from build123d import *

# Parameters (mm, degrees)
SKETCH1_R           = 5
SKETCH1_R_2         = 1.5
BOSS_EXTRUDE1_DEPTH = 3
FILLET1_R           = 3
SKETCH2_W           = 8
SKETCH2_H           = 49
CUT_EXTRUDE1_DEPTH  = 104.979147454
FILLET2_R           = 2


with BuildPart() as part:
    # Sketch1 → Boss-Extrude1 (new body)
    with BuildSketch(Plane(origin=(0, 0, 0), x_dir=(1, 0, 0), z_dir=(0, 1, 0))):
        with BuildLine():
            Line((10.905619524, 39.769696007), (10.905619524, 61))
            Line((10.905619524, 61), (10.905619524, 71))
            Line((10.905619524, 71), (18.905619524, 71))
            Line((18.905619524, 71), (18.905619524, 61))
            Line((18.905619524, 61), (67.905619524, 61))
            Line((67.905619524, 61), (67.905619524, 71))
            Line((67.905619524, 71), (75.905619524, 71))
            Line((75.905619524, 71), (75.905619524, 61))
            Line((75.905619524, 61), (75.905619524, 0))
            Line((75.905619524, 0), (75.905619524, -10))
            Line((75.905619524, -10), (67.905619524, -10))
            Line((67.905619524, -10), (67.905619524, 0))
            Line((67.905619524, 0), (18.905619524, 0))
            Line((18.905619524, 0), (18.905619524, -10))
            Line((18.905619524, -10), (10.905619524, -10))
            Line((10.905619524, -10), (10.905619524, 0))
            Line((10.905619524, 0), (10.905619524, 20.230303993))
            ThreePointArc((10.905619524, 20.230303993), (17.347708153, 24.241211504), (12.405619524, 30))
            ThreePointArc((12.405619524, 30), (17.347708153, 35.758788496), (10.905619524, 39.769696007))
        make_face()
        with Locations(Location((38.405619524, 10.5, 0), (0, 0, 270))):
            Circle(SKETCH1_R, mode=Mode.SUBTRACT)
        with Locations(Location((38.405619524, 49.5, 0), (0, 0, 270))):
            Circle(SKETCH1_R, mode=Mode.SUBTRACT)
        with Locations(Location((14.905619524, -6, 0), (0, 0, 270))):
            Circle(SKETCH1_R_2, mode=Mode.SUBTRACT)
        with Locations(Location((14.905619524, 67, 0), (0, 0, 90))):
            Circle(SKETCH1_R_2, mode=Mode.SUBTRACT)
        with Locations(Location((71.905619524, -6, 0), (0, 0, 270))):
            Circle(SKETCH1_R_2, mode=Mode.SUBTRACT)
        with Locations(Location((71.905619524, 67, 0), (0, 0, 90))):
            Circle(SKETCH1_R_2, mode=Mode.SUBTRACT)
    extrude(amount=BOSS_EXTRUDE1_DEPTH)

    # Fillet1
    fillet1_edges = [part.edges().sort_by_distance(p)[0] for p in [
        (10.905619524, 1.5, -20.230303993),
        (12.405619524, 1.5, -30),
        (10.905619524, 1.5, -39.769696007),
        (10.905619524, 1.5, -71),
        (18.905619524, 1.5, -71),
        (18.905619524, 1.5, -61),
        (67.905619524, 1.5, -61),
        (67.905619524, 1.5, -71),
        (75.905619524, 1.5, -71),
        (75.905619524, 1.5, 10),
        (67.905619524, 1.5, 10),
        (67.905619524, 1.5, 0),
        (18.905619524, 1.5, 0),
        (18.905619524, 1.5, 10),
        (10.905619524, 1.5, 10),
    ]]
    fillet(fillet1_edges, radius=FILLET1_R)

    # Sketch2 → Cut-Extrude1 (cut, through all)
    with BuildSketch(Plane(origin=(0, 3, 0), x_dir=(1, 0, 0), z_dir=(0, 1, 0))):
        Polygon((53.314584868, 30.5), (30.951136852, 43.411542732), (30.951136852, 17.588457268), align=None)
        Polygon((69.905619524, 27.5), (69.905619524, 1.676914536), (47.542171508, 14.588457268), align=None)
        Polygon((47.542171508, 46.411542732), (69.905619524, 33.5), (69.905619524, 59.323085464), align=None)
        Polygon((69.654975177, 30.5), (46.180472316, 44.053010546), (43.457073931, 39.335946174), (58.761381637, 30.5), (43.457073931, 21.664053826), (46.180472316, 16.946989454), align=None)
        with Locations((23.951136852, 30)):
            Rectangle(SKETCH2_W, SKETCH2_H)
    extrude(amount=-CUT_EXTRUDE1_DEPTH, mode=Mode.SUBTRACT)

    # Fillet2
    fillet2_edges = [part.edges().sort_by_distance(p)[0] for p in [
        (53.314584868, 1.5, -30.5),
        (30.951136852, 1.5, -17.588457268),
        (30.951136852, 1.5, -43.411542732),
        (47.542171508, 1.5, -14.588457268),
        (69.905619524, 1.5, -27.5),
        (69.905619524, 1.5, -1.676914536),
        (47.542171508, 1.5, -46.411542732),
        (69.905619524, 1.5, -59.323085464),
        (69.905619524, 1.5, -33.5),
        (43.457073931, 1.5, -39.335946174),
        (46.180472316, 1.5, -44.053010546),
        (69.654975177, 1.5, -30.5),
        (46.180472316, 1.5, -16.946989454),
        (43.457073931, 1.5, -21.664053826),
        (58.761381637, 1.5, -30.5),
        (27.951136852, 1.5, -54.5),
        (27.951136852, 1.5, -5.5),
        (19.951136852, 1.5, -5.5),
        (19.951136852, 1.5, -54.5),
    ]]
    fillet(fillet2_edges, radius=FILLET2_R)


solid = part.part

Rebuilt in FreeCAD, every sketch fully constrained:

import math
import FreeCAD as App
import Part
import Sketcher
from FreeCAD import Vector
Q = App.Units.Quantity


def edges_at(feature, points):
    """Names of the edges that pass closest to the given points."""
    edges = feature.Shape.Edges
    near = lambda p: min(range(len(edges)), key=lambda i: edges[i].distToShape(Part.Vertex(*p))[0])
    return sorted({f"Edge{near(p) + 1}" for p in points})


def add_polygon(sketch, points):
    """Adds a closed chain of lines whose ends are joined by coincident constraints."""
    first, n = sketch.GeometryCount, len(points)
    for a, b in zip(points, points[1:] + points[:1]):
        sketch.addGeometry(Part.LineSegment(App.Vector(*a, 0), App.Vector(*b, 0)), False)
    for i in range(n):
        sketch.addConstraint(Sketcher.Constraint("Coincident", first + i, 2, first + (i + 1) % n, 1))

doc = App.newDocument("Part")
body = doc.addObject("PartDesign::Body", "Body")

# Sketch on XZ plane
sketch1 = body.newObject("Sketcher::SketchObject", "Sketch")
sketch1.AttachmentSupport = (doc.getObject("XZ_Plane"), [""])
sketch1.MapMode = "FlatFace"
sketch1.addGeometry([
    Part.LineSegment(Vector(10.90562, -71, 0), Vector(10.90562, -39.769696, 0)),  # 0
    Part.ArcOfCircle(Part.Circle(Vector(12.40562, -35, 0), Vector(0, 0, 1), 5), math.radians(-107.457603), math.radians(90)),  # 1
    Part.ArcOfCircle(Part.Circle(Vector(12.40562, -25, 0), Vector(0, 0, 1), 5), math.radians(-90), math.radians(107.457603)),  # 2
    Part.LineSegment(Vector(10.90562, -20.230304, 0), Vector(10.90562, 10, 0)),  # 3
    Part.LineSegment(Vector(10.90562, 10, 0), Vector(18.90562, 10, 0)),  # 4
    Part.LineSegment(Vector(18.90562, 10, 0), Vector(18.90562, 0, 0)),  # 5
    Part.LineSegment(Vector(18.90562, 0, 0), Vector(67.90562, 0, 0)),  # 6
    Part.LineSegment(Vector(67.90562, 0, 0), Vector(67.90562, 10, 0)),  # 7
    Part.LineSegment(Vector(67.90562, 10, 0), Vector(75.90562, 10, 0)),  # 8
    Part.LineSegment(Vector(75.90562, 10, 0), Vector(75.90562, -71, 0)),  # 9
    Part.LineSegment(Vector(75.90562, -71, 0), Vector(67.90562, -71, 0)),  # 10
    Part.LineSegment(Vector(67.90562, -71, 0), Vector(67.90562, -61, 0)),  # 11
    Part.LineSegment(Vector(67.90562, -61, 0), Vector(18.90562, -61, 0)),  # 12
    Part.LineSegment(Vector(18.90562, -61, 0), Vector(18.90562, -71, 0)),  # 13
    Part.LineSegment(Vector(18.90562, -71, 0), Vector(10.90562, -71, 0)),  # 14
    Part.Circle(Vector(71.90562, 6, 0), Vector(0, 0, 1), 1.5),  # 15
    Part.Circle(Vector(38.40562, -10.5, 0), Vector(0, 0, 1), 5),  # 16
    Part.Circle(Vector(14.90562, 6, 0), Vector(0, 0, 1), 1.5),  # 17
    Part.Circle(Vector(71.90562, -67, 0), Vector(0, 0, 1), 1.5),  # 18
    Part.Circle(Vector(38.40562, -49.5, 0), Vector(0, 0, 1), 5),  # 19
    Part.Circle(Vector(14.90562, -67, 0), Vector(0, 0, 1), 1.5),  # 20
], False)
sketch1.addConstraint([
    Sketcher.Constraint("Coincident", 0, 2, 1, 1),
    Sketcher.Constraint("Tangent", 1, 2, 2, 1),
    Sketcher.Constraint("Coincident", 2, 2, 3, 1),
    Sketcher.Constraint("Coincident", 3, 2, 4, 1),
    Sketcher.Constraint("Coincident", 4, 2, 5, 1),
    Sketcher.Constraint("Coincident", 5, 2, 6, 1),
    Sketcher.Constraint("Coincident", 6, 2, 7, 1),
    Sketcher.Constraint("Coincident", 7, 2, 8, 1),
    Sketcher.Constraint("Coincident", 8, 2, 9, 1),
    Sketcher.Constraint("Coincident", 9, 2, 10, 1),
    Sketcher.Constraint("Coincident", 10, 2, 11, 1),
    Sketcher.Constraint("Coincident", 11, 2, 12, 1),
    Sketcher.Constraint("Coincident", 12, 2, 13, 1),
    Sketcher.Constraint("Coincident", 13, 2, 14, 1),
    Sketcher.Constraint("Coincident", 14, 2, 0, 1),
    Sketcher.Constraint("Vertical", 0),
    Sketcher.Constraint("Vertical", 3),
    Sketcher.Constraint("Horizontal", 4),
    Sketcher.Constraint("Vertical", 5),
    Sketcher.Constraint("Horizontal", 6),
    Sketcher.Constraint("Vertical", 7),
    Sketcher.Constraint("Horizontal", 8),
    Sketcher.Constraint("Vertical", 9),
    Sketcher.Constraint("Horizontal", 10),
    Sketcher.Constraint("Vertical", 11),
    Sketcher.Constraint("Horizontal", 12),
    Sketcher.Constraint("Vertical", 13),
    Sketcher.Constraint("Horizontal", 14),
    Sketcher.Constraint("Equal", 1, 2),
    Sketcher.Constraint("Equal", 2, 16),
    Sketcher.Constraint("Equal", 15, 17),
    Sketcher.Constraint("Equal", 17, 18),
    Sketcher.Constraint("Equal", 16, 19),
    Sketcher.Constraint("Equal", 18, 20),
    Sketcher.Constraint("PointOnObject", 5, 2, -1),
    Sketcher.Constraint("Horizontal", 15, 3, 17, 3),
    Sketcher.Constraint("Horizontal", 18, 3, 20, 3),
    Sketcher.Constraint("Horizontal", 4, 2, 7, 2),
    Sketcher.Constraint("Horizontal", 10, 2, 13, 2),
    Sketcher.Constraint("Vertical", 1, 3, 2, 3),
    Sketcher.Constraint("Vertical", 15, 3, 18, 3),
    Sketcher.Constraint("Vertical", 16, 3, 19, 3),
    Sketcher.Constraint("Vertical", 17, 3, 20, 3),
    Sketcher.Constraint("Vertical", 0, 2, 2, 2),
    Sketcher.Constraint("Vertical", 7, 2, 10, 2),
    Sketcher.Constraint("Vertical", 5, 2, 12, 2),
    Sketcher.Constraint("Equal", 4, 8),
    Sketcher.Constraint("Equal", 7, 11),
    Sketcher.Constraint("Diameter", 15, Q("3 mm")),
    Sketcher.Constraint("Diameter", 16, Q("10 mm")),
    Sketcher.Constraint("DistanceX", 4, 1, 4, 2, Q("8 mm")),
    Sketcher.Constraint("DistanceX", 6, 1, 6, 2, Q("49 mm")),
    Sketcher.Constraint("DistanceY", 5, 2, 5, 1, Q("10 mm")),
    Sketcher.Constraint("DistanceY", 9, 2, 9, 1, Q("81 mm")),
    Sketcher.Constraint("DistanceY", 1, 3, -1, 1, Q("35 mm")),
    Sketcher.Constraint("DistanceY", -1, 1, 15, 3, Q("6 mm")),
    Sketcher.Constraint("DistanceY", 18, 3, -1, 1, Q("67 mm")),
    Sketcher.Constraint("DistanceX", 2, 3, 16, 3, Q("26 mm")),
    Sketcher.Constraint("DistanceX", 17, 3, 15, 3, Q("57 mm")),
    Sketcher.Constraint("DistanceY", 19, 3, 16, 3, Q("39 mm")),
    Sketcher.Constraint("DistanceX", 0, 2, 20, 3, Q("4 mm")),
    Sketcher.Constraint("DistanceY", 16, 3, -1, 1, Q("10.5 mm")),
    Sketcher.Constraint("DistanceX", 2, 3, 15, 3, Q("59.5 mm")),
    Sketcher.Constraint("DistanceX", -1, 1, 1, 3, Q("12.40562 mm")),
])
pad1 = body.newObject("PartDesign::Pad", "Pad")
pad1.Profile = sketch1
pad1.Length = 3
pad1.Reversed = True
doc.recompute()

fillet = body.newObject("PartDesign::Fillet", "Fillet")
fillet.Base = (pad1, edges_at(pad1, [
    (10.906, 1.5, -20.23),
    (12.406, 1.5, -30),
    (10.906, 1.5, -39.77),
    (10.906, 1.5, -71),
    (18.906, 1.5, -71),
    (18.906, 1.5, -61),
    (67.906, 1.5, -61),
    (67.906, 1.5, -71),
    (75.906, 1.5, -71),
    (75.906, 1.5, 10),
    (67.906, 1.5, 10),
    (67.906, 1.5, 0),
    (18.906, 1.5, 0),
    (18.906, 1.5, 10),
    (10.906, 1.5, 10),
]))
fillet.Radius = 3

# Sketch on XZ plane
sketch2 = body.newObject("Sketcher::SketchObject", "Sketch001")
sketch2.AttachmentSupport = (doc.getObject("XZ_Plane"), [""])
sketch2.MapMode = "FlatFace"
sketch2.AttachmentOffset = App.Placement(Vector(0, 0, -3), App.Rotation())
add_polygon(sketch2, [(53.314585, -30.5), (30.951137, -43.411543), (30.951137, -17.588457)])  # lines 0-2
add_polygon(sketch2, [(69.90562, -1.676915), (69.90562, -27.5), (47.542172, -14.588457)])  # lines 3-5
add_polygon(sketch2, [(47.542172, -46.411543), (69.90562, -33.5), (69.90562, -59.323085)])  # lines 6-8
add_polygon(sketch2, [(69.654975, -30.5), (46.180472, -44.053011), (43.457074, -39.335946), (58.761382, -30.5), (43.457074, -21.664054), (46.180472, -16.946989)])  # lines 9-14
add_polygon(sketch2, [(19.951137, -54.5), (19.951137, -5.5), (27.951137, -5.5), (27.951137, -54.5)])  # lines 15-18
sketch2.addConstraint([
    Sketcher.Constraint("Vertical", 1),
    Sketcher.Constraint("Vertical", 3),
    Sketcher.Constraint("Vertical", 7),
    Sketcher.Constraint("Vertical", 15),
    Sketcher.Constraint("Horizontal", 16),
    Sketcher.Constraint("Vertical", 17),
    Sketcher.Constraint("Horizontal", 18),
    Sketcher.Constraint("Parallel", 2, 4),
    Sketcher.Constraint("Parallel", 0, 5),
    Sketcher.Constraint("Parallel", 5, 6),
    Sketcher.Constraint("Parallel", 4, 8),
    Sketcher.Constraint("Parallel", 6, 9),
    Sketcher.Constraint("Perpendicular", 9, 10),
    Sketcher.Constraint("Perpendicular", 10, 11),
    Sketcher.Constraint("Parallel", 8, 12),
    Sketcher.Constraint("Perpendicular", 12, 13),
    Sketcher.Constraint("Perpendicular", 13, 14),
    Sketcher.Constraint("Horizontal", 2, 2, 11, 2),
    Sketcher.Constraint("Horizontal", 11, 2, 14, 2),
    Sketcher.Constraint("Vertical", 5, 2, 6, 2),
    Sketcher.Constraint("Vertical", 4, 2, 8, 2),
    Sketcher.Constraint("Vertical", 10, 2, 12, 2),
    Sketcher.Constraint("Vertical", 9, 2, 13, 2),
    Sketcher.Constraint("Equal", 1, 3),
    Sketcher.Constraint("DistanceX", 16, 1, 16, 2, Q("8 mm")),
    Sketcher.Constraint("DistanceY", 15, 1, 15, 2, Q("49 mm")),
    Sketcher.Constraint("Angle", 0, Q("-150 deg")),
    Sketcher.Constraint("DistanceY", 2, 2, 3, 2, Q("3 mm")),
    Sketcher.Constraint("DistanceY", 6, 2, 3, 2, Q("6 mm")),
    Sketcher.Constraint("DistanceX", 15, 2, 1, 2, Q("11 mm")),
    Sketcher.Constraint("DistanceY", 17, 2, 2, 2, Q("24 mm")),
    Sketcher.Constraint("DistanceY", 2, 2, -1, 1, Q("30.5 mm")),
    Sketcher.Constraint("DistanceX", 9, 2, 8, 2, Q("1.361699 mm")),
    Sketcher.Constraint("DistanceX", 10, 2, 9, 2, Q("2.723398 mm")),
    Sketcher.Constraint("Distance", 9, Q("27.106021 mm")),
    Sketcher.Constraint("DistanceY", 1, 1, 1, 2, Q("25.823085 mm")),
    Sketcher.Constraint("DistanceX", -1, 1, 3, 2, Q("69.90562 mm")),
    Sketcher.Constraint("DistanceX", 10, 2, 2, 2, Q("9.857511 mm")),
])
pocket1 = body.newObject("PartDesign::Pocket", "Pocket")
pocket1.Profile = sketch2
pocket1.Type = "ThroughAll"
pocket1.Reversed = True
doc.recompute()

fillet2 = body.newObject("PartDesign::Fillet", "Fillet001")
fillet2.Base = (pocket1, edges_at(pocket1, [
    (53.315, 1.5, -30.5),
    (30.951, 1.5, -17.588),
    (30.951, 1.5, -43.412),
    (47.542, 1.5, -14.588),
    (69.906, 1.5, -27.5),
    (69.906, 1.5, -1.677),
    (47.542, 1.5, -46.412),
    (69.906, 1.5, -59.323),
    (69.906, 1.5, -33.5),
    (43.457, 1.5, -39.336),
    (46.18, 1.5, -44.053),
    (69.655, 1.5, -30.5),
    (46.18, 1.5, -16.947),
    (43.457, 1.5, -21.664),
    (58.761, 1.5, -30.5),
    (27.951, 1.5, -54.5),
    (27.951, 1.5, -5.5),
    (19.951, 1.5, -5.5),
    (19.951, 1.5, -54.5),
]))
fillet2.Radius = 2

doc.recompute()
